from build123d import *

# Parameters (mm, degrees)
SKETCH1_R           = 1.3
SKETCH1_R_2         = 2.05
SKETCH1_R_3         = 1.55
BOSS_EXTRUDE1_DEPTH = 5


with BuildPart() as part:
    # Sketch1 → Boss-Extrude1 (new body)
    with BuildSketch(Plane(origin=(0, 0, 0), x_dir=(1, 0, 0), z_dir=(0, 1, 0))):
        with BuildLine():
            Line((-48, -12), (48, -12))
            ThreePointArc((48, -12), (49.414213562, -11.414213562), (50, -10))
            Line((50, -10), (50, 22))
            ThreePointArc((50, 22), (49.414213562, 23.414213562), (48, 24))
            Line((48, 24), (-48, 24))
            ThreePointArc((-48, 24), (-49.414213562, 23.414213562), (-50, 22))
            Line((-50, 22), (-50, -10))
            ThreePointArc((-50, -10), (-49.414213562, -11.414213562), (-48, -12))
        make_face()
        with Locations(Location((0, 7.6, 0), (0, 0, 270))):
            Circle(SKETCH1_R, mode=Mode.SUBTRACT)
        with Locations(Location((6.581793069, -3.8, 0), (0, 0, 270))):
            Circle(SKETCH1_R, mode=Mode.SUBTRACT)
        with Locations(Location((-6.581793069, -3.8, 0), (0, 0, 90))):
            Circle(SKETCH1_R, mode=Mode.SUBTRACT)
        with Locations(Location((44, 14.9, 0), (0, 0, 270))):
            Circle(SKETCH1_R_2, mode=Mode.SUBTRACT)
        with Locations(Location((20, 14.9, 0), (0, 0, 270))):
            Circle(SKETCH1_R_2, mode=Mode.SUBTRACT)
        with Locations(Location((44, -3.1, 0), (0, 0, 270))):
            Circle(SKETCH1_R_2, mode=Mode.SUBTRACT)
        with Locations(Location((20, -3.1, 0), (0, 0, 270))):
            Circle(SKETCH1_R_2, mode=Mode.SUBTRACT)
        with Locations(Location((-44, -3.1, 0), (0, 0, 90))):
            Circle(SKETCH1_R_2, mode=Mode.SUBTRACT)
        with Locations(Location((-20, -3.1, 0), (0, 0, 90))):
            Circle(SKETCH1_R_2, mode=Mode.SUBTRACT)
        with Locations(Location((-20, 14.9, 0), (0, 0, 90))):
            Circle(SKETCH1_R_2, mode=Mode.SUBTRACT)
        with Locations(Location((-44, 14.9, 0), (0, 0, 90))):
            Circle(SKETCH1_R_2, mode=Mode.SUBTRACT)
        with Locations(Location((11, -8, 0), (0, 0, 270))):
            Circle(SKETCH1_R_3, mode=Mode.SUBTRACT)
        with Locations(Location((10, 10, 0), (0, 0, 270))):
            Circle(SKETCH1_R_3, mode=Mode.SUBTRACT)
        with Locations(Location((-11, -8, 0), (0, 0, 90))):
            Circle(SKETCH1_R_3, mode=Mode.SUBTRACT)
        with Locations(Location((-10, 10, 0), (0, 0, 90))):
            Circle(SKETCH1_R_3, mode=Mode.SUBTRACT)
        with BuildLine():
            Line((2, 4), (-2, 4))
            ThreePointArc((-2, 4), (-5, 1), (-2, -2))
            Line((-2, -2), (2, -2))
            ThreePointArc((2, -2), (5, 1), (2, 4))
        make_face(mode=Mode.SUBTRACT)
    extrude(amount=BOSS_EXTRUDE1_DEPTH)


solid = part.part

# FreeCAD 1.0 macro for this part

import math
import FreeCAD as App
import Part
import Sketcher
from FreeCAD import Vector
Q = App.Units.Quantity

doc = App.newDocument("Part")
body = doc.addObject("PartDesign::Body", "Body")

# Sketch on XZ plane
sketch1 = doc.addObject("Sketcher::SketchObject", "Sketch")
body.addObject(sketch1)
sketch1.AttachmentSupport = (doc.XZ_Plane, [""])
sketch1.MapMode = "FlatFace"
sketch1.addGeometry(Part.LineSegment(Vector(-48, 12, 0), Vector(48, 12, 0)), False)
sketch1.addGeometry(Part.ArcOfCircle(Part.Circle(Vector(48, 10, 0), Vector(0, 0, 1), 2), math.radians(0), math.radians(90)), False)
sketch1.addGeometry(Part.LineSegment(Vector(50, 10, 0), Vector(50, -22, 0)), False)
sketch1.addGeometry(Part.ArcOfCircle(Part.Circle(Vector(48, -22, 0), Vector(0, 0, 1), 2), math.radians(-90), math.radians(0)), False)
sketch1.addGeometry(Part.LineSegment(Vector(48, -24, 0), Vector(-48, -24, 0)), False)
sketch1.addGeometry(Part.ArcOfCircle(Part.Circle(Vector(-48, -22, 0), Vector(0, 0, 1), 2), math.radians(-180), math.radians(-90)), False)
sketch1.addGeometry(Part.LineSegment(Vector(-50, -22, 0), Vector(-50, 10, 0)), False)
sketch1.addGeometry(Part.ArcOfCircle(Part.Circle(Vector(-48, 10, 0), Vector(0, 0, 1), 2), math.radians(90), math.radians(180)), False)
sketch1.addGeometry(Part.Circle(Vector(-44, 3.1, 0), Vector(0, 0, 1), 2), False)
sketch1.addGeometry(Part.Circle(Vector(-11, 8, 0), Vector(0, 0, 1), 1.6), False)
sketch1.addGeometry(Part.Circle(Vector(-20, 3.1, 0), Vector(0, 0, 1), 2), False)
sketch1.addGeometry(Part.Circle(Vector(-6.6, 3.8, 0), Vector(0, 0, 1), 1.3), False)
sketch1.addGeometry(Part.Circle(Vector(11, 8, 0), Vector(0, 0, 1), 1.6), False)
sketch1.addGeometry(Part.Circle(Vector(6.6, 3.8, 0), Vector(0, 0, 1), 1.3), False)
sketch1.addGeometry(Part.Circle(Vector(20, 3.1, 0), Vector(0, 0, 1), 2), False)
sketch1.addGeometry(Part.Circle(Vector(44, 3.1, 0), Vector(0, 0, 1), 2), False)
sketch1.addGeometry(Part.LineSegment(Vector(-2, -4, 0), Vector(2, -4, 0)), False)
sketch1.addGeometry(Part.ArcOfCircle(Part.Circle(Vector(2, -1, 0), Vector(0, 0, 1), 3), math.radians(-90), math.radians(90)), False)
sketch1.addGeometry(Part.LineSegment(Vector(2, 2, 0), Vector(-2, 2, 0)), False)
sketch1.addGeometry(Part.ArcOfCircle(Part.Circle(Vector(-2, -1, 0), Vector(0, 0, 1), 3), math.radians(90), math.radians(270)), False)
sketch1.addGeometry(Part.Circle(Vector(-10, -10, 0), Vector(0, 0, 1), 1.6), False)
sketch1.addGeometry(Part.Circle(Vector(-44, -14.9, 0), Vector(0, 0, 1), 2), False)
sketch1.addGeometry(Part.Circle(Vector(-20, -14.9, 0), Vector(0, 0, 1), 2), False)
sketch1.addGeometry(Part.Circle(Vector(0, -7.6, 0), Vector(0, 0, 1), 1.3), False)
sketch1.addGeometry(Part.Circle(Vector(10, -10, 0), Vector(0, 0, 1), 1.6), False)
sketch1.addGeometry(Part.Circle(Vector(20, -14.9, 0), Vector(0, 0, 1), 2), False)
sketch1.addGeometry(Part.Circle(Vector(44, -14.9, 0), Vector(0, 0, 1), 2), False)
sketch1.addConstraint(Sketcher.Constraint("Tangent", 0, 2, 1, 2))
sketch1.addConstraint(Sketcher.Constraint("Tangent", 1, 1, 2, 1))
sketch1.addConstraint(Sketcher.Constraint("Tangent", 2, 2, 3, 2))
sketch1.addConstraint(Sketcher.Constraint("Tangent", 3, 1, 4, 1))
sketch1.addConstraint(Sketcher.Constraint("Tangent", 4, 2, 5, 2))
sketch1.addConstraint(Sketcher.Constraint("Tangent", 5, 1, 6, 1))
sketch1.addConstraint(Sketcher.Constraint("Tangent", 6, 2, 7, 2))
sketch1.addConstraint(Sketcher.Constraint("Tangent", 7, 1, 0, 1))
sketch1.addConstraint(Sketcher.Constraint("Tangent", 16, 2, 17, 1))
sketch1.addConstraint(Sketcher.Constraint("Tangent", 17, 2, 18, 1))
sketch1.addConstraint(Sketcher.Constraint("Tangent", 18, 2, 19, 1))
sketch1.addConstraint(Sketcher.Constraint("Tangent", 19, 2, 16, 1))
sketch1.addConstraint(Sketcher.Constraint("Horizontal", 0))
sketch1.addConstraint(Sketcher.Constraint("Vertical", 2))
sketch1.addConstraint(Sketcher.Constraint("Horizontal", 4))
sketch1.addConstraint(Sketcher.Constraint("Vertical", 6))
sketch1.addConstraint(Sketcher.Constraint("Horizontal", 16))
sketch1.addConstraint(Sketcher.Constraint("Horizontal", 18))
sketch1.addConstraint(Sketcher.Constraint("Equal", 1, 3))
sketch1.addConstraint(Sketcher.Constraint("Equal", 3, 5))
sketch1.addConstraint(Sketcher.Constraint("Equal", 5, 7))
sketch1.addConstraint(Sketcher.Constraint("Equal", 8, 10))
sketch1.addConstraint(Sketcher.Constraint("Equal", 9, 12))
sketch1.addConstraint(Sketcher.Constraint("Equal", 11, 13))
sketch1.addConstraint(Sketcher.Constraint("Equal", 10, 14))
sketch1.addConstraint(Sketcher.Constraint("Equal", 14, 15))
sketch1.addConstraint(Sketcher.Constraint("Equal", 12, 20))
sketch1.addConstraint(Sketcher.Constraint("Equal", 15, 21))
sketch1.addConstraint(Sketcher.Constraint("Equal", 21, 22))
sketch1.addConstraint(Sketcher.Constraint("Equal", 13, 23))
sketch1.addConstraint(Sketcher.Constraint("Equal", 20, 24))
sketch1.addConstraint(Sketcher.Constraint("Equal", 22, 25))
sketch1.addConstraint(Sketcher.Constraint("Equal", 25, 26))
sketch1.addConstraint(Sketcher.Constraint("Symmetric", 9, 3, 12, 3, -2))
sketch1.addConstraint(Sketcher.Constraint("Symmetric", 11, 3, 13, 3, -2))
sketch1.addConstraint(Sketcher.Constraint("Symmetric", 10, 3, 14, 3, -2))
sketch1.addConstraint(Sketcher.Constraint("Symmetric", 8, 3, 15, 3, -2))
sketch1.addConstraint(Sketcher.Constraint("Symmetric", 20, 3, 24, 3, -2))
sketch1.addConstraint(Sketcher.Constraint("Symmetric", 22, 3, 25, 3, -2))
sketch1.addConstraint(Sketcher.Constraint("Symmetric", 21, 3, 26, 3, -2))
sketch1.addConstraint(Sketcher.Constraint("PointOnObject", 23, 3, -2))
sketch1.addConstraint(Sketcher.Constraint("Horizontal", 8, 3, 10, 3))
sketch1.addConstraint(Sketcher.Constraint("Horizontal", 21, 3, 22, 3))
sketch1.addConstraint(Sketcher.Constraint("Vertical", 8, 3, 21, 3))
sketch1.addConstraint(Sketcher.Constraint("Vertical", 10, 3, 22, 3))
sketch1.addConstraint(Sketcher.Constraint("Radius", 1, Q("2 mm")))
sketch1.addConstraint(Sketcher.Constraint("Radius", 17, Q("3 mm")))
sketch1.addConstraint(Sketcher.Constraint("Diameter", 8, Q("4.1 mm")))
sketch1.addConstraint(Sketcher.Constraint("Diameter", 9, Q("3.1 mm")))
sketch1.addConstraint(Sketcher.Constraint("Diameter", 11, Q("2.6 mm")))
sketch1.addConstraint(Sketcher.Constraint("DistanceX", 0, 1, 0, 2, Q("96 mm")))
sketch1.addConstraint(Sketcher.Constraint("DistanceX", 16, 1, 16, 2, Q("4 mm")))
sketch1.addConstraint(Sketcher.Constraint("DistanceY", 2, 2, 2, 1, Q("32 mm")))
sketch1.addConstraint(Sketcher.Constraint("DistanceX", -1, 1, 1, 3, Q("48 mm")))
sketch1.addConstraint(Sketcher.Constraint("DistanceY", -1, 1, 1, 3, Q("10 mm")))
sketch1.addConstraint(Sketcher.Constraint("DistanceX", 8, 3, -1, 1, Q("44 mm")))
sketch1.addConstraint(Sketcher.Constraint("DistanceX", 9, 3, -1, 1, Q("11 mm")))
sketch1.addConstraint(Sketcher.Constraint("DistanceY", -1, 1, 9, 3, Q("8 mm")))
sketch1.addConstraint(Sketcher.Constraint("DistanceX", 10, 3, -1, 1, Q("20 mm")))
sketch1.addConstraint(Sketcher.Constraint("DistanceX", -1, 1, 17, 3, Q("2 mm")))
sketch1.addConstraint(Sketcher.Constraint("DistanceY", 17, 3, -1, 1, Q("1 mm")))
sketch1.addConstraint(Sketcher.Constraint("DistanceX", 20, 3, -1, 1, Q("10 mm")))
sketch1.addConstraint(Sketcher.Constraint("DistanceY", 20, 3, -1, 1, Q("10 mm")))
sketch1.addConstraint(Sketcher.Constraint("DistanceY", 21, 3, 8, 3, Q("18 mm")))
sketch1.addConstraint(Sketcher.Constraint("DistanceY", -1, 1, 8, 3, Q("3.1 mm")))
sketch1.addConstraint(Sketcher.Constraint("DistanceY", -1, 1, 11, 3, Q("3.8 mm")))
sketch1.addConstraint(Sketcher.Constraint("DistanceY", 23, 3, -1, 1, Q("7.6 mm")))
sketch1.addConstraint(Sketcher.Constraint("DistanceX", 11, 3, -1, 1, Q("6.581793 mm")))
pad1 = doc.addObject("PartDesign::Pad", "Pad")
body.addObject(pad1)
pad1.Profile = sketch1
pad1.Length = 5
pad1.Reversed = True

doc.recompute()
